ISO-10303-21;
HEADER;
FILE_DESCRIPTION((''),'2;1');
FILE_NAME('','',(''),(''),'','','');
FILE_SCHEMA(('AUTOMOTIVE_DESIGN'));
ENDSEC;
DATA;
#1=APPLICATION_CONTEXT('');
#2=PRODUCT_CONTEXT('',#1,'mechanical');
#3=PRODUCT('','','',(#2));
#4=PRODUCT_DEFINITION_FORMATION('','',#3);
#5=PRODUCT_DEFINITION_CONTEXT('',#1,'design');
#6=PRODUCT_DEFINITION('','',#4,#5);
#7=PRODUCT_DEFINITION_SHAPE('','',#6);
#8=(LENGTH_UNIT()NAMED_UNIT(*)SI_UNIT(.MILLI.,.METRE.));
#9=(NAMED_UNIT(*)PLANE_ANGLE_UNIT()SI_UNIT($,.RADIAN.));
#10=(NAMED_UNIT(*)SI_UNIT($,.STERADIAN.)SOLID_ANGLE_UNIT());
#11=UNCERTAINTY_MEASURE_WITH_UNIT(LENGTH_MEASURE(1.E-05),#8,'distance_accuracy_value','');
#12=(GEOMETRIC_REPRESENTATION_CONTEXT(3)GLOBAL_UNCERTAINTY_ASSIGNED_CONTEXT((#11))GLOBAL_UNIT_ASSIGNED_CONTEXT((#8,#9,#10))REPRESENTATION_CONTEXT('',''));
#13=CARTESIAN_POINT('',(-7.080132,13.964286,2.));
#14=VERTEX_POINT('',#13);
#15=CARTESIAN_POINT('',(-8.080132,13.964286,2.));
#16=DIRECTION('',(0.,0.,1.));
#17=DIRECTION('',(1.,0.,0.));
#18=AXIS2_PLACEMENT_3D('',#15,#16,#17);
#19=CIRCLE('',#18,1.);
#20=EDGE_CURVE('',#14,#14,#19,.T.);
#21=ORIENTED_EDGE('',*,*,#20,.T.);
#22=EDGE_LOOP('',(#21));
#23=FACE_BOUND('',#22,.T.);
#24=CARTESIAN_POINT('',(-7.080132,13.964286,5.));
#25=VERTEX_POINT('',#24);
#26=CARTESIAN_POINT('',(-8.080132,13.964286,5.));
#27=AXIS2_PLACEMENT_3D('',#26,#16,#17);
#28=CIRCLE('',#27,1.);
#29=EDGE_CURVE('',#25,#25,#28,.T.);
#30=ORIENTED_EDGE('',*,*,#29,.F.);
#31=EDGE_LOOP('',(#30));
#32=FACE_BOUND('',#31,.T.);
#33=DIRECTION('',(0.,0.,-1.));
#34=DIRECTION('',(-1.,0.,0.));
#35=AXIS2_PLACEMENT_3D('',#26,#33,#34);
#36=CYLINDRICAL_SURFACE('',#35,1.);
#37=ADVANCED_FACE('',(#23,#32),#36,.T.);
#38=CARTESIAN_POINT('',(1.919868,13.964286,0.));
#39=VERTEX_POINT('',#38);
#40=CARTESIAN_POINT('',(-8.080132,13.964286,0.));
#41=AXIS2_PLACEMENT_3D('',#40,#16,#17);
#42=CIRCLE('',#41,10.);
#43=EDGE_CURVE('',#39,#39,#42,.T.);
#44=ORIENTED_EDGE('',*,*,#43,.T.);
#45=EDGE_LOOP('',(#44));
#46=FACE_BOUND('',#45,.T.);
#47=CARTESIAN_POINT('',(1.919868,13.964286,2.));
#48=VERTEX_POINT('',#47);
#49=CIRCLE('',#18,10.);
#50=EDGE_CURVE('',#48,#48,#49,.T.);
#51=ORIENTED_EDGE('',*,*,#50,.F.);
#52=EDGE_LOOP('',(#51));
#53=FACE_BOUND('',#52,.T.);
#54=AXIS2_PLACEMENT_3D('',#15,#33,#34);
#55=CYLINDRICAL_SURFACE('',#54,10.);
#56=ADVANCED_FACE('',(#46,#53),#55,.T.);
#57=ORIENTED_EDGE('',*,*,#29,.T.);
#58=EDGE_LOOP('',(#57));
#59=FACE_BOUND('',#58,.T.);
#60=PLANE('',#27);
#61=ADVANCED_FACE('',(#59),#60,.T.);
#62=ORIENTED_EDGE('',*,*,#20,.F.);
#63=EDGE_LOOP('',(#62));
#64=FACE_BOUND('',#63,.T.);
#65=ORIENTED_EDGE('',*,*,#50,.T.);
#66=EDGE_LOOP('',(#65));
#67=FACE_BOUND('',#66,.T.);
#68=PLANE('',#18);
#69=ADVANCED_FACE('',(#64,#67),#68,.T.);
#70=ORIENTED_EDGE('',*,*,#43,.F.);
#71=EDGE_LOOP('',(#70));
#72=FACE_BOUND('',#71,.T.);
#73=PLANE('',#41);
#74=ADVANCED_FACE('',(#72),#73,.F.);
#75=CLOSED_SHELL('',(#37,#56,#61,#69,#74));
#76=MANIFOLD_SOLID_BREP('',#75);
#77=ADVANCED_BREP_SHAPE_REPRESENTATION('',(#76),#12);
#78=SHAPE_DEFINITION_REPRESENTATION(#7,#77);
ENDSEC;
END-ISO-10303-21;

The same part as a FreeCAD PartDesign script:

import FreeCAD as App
import Part
import Sketcher

V = App.Vector
Q = App.Units.Quantity

doc = App.newDocument("Part")
params = doc.addObject("Spreadsheet::Sheet", "Params")
for row, (alias, value) in enumerate([
    ("sketch1_diameter", "20 mm"),
    ("pad1_length", "2 mm"),
    ("sketch2_diameter", "2 mm"),
    ("pad2_length", "3 mm"),
], start=1):
    params.set(f"A{row}", alias)
    params.set(f"B{row}", "=" + value)
    params.setAlias(f"B{row}", alias)

body = doc.addObject("PartDesign::Body", "Body")

# Sketch on XY plane
sketch1 = body.newObject("Sketcher::SketchObject", "Sketch")
sketch1.AttachmentSupport = (doc.getObject("XY_Plane"), [""])
sketch1.MapMode = "FlatFace"
sketch1.addGeometry(Part.Circle(V(-8, 14, 0), V(0, 0, 1), 10), False)
sketch1.addConstraint([
    Sketcher.Constraint("Diameter", 0, Q("20 mm")),
    Sketcher.Constraint("DistanceX", 0, 3, -1, 1, Q("8.080132 mm")),
    Sketcher.Constraint("DistanceY", -1, 1, 0, 3, Q("13.964286 mm")),
])
sketch1.setExpression("Constraints[0]", "Params.sketch1_diameter")
pad1 = body.newObject("PartDesign::Pad", "Pad")
pad1.Profile = sketch1
pad1.setExpression("Length", "Params.pad1_length")

# Sketch on XY plane
sketch2 = body.newObject("Sketcher::SketchObject", "Sketch001")
sketch2.AttachmentSupport = (doc.getObject("XY_Plane"), [""])
sketch2.MapMode = "FlatFace"
sketch2.AttachmentOffset = App.Placement(V(0, 0, 2), App.Rotation())
sketch2.addGeometry(Part.Circle(V(-8.1, 14, 0), V(0, 0, 1), 1), False)
sketch2.addConstraint([
    Sketcher.Constraint("Diameter", 0, Q("2 mm")),
    Sketcher.Constraint("DistanceX", 0, 3, -1, 1, Q("8.080132 mm")),
    Sketcher.Constraint("DistanceY", -1, 1, 0, 3, Q("13.964286 mm")),
])
sketch2.setExpression("Constraints[0]", "Params.sketch2_diameter")
pad2 = body.newObject("PartDesign::Pad", "Pad001")
pad2.Profile = sketch2
pad2.setExpression("Length", "Params.pad2_length")

doc.recompute()
